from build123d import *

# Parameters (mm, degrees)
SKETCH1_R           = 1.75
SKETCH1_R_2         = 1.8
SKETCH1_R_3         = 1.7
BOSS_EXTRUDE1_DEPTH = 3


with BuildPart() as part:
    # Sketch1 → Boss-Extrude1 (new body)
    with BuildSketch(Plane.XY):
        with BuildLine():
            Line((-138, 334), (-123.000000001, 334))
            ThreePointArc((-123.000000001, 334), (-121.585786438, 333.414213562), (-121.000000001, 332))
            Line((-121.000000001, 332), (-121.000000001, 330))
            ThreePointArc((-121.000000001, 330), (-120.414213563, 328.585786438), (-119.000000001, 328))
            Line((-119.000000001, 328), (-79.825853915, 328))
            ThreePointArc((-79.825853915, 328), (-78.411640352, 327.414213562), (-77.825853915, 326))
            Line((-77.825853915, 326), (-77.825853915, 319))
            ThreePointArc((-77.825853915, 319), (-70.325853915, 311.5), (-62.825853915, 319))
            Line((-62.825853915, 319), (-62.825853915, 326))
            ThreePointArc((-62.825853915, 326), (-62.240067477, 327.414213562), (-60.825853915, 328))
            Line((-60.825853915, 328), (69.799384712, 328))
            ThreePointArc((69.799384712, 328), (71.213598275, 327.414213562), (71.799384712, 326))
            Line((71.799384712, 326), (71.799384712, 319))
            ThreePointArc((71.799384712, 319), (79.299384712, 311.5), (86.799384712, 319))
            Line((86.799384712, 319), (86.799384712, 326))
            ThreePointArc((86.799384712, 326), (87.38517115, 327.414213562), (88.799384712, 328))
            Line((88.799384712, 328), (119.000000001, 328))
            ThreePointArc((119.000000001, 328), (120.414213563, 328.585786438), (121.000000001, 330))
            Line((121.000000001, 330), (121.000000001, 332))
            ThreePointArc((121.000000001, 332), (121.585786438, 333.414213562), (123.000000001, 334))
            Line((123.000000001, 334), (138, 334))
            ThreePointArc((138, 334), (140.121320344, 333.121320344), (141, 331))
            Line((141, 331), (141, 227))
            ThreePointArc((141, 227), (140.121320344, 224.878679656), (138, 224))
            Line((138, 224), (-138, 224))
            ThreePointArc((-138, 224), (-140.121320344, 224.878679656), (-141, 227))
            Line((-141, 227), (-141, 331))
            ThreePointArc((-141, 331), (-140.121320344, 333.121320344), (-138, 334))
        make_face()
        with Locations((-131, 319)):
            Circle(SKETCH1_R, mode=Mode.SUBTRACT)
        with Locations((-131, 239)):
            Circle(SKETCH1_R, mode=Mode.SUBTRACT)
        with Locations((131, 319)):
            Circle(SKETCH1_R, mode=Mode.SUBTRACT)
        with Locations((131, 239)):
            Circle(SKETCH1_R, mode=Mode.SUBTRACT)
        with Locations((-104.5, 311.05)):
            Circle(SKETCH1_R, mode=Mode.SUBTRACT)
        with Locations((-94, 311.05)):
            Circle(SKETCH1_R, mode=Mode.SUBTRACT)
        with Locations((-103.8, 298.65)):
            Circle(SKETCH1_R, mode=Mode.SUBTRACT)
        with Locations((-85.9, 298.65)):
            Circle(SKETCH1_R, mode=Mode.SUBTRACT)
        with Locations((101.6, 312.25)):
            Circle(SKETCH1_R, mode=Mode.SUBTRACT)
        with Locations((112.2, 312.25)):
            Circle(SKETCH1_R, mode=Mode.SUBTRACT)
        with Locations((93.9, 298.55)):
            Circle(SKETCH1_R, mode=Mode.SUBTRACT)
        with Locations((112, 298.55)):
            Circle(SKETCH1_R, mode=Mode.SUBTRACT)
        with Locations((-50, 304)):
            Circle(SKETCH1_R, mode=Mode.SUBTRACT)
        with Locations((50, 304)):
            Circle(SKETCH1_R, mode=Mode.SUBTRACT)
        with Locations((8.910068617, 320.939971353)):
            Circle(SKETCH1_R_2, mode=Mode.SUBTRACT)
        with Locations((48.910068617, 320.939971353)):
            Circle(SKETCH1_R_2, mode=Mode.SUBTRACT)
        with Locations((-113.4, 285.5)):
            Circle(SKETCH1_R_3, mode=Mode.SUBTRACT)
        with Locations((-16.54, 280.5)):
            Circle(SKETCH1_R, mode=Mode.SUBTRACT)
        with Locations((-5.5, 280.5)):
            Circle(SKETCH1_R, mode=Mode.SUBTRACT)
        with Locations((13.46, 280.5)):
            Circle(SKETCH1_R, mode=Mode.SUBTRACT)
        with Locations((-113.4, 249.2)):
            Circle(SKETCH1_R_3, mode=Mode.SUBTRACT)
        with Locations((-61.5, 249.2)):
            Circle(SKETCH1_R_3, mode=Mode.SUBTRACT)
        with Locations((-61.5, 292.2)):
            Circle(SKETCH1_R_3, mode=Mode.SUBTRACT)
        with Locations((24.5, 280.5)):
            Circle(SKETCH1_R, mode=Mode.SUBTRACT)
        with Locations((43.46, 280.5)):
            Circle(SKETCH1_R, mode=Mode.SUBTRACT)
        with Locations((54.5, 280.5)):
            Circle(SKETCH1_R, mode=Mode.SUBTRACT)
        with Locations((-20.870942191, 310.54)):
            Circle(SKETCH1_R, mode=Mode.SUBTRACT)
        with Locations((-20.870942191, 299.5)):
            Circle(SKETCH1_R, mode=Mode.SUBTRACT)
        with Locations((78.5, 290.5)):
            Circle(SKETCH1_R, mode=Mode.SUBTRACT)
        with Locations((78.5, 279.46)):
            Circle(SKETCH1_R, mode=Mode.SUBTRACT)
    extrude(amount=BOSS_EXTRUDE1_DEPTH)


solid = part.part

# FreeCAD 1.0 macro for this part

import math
import FreeCAD as App
import Part
import Sketcher
from FreeCAD import Vector
Q = App.Units.Quantity

doc = App.newDocument("Part")
body = doc.addObject("PartDesign::Body", "Body")

# Sketch on XY plane
sketch1 = doc.addObject("Sketcher::SketchObject", "Sketch")
body.addObject(sketch1)
sketch1.AttachmentSupport = (doc.XY_Plane, [""])
sketch1.MapMode = "FlatFace"
sketch1.addGeometry([
    Part.LineSegment(Vector(-123, 334, 0), Vector(-138, 334, 0)),  # 0
    Part.ArcOfCircle(Part.Circle(Vector(-138, 331, 0), Vector(0, 0, 1), 3), math.radians(90), math.radians(180)),  # 1
    Part.LineSegment(Vector(-141, 331, 0), Vector(-141, 227, 0)),  # 2
    Part.ArcOfCircle(Part.Circle(Vector(-138, 227, 0), Vector(0, 0, 1), 3), math.radians(180), math.radians(270)),  # 3
    Part.LineSegment(Vector(-138, 224, 0), Vector(138, 224, 0)),  # 4
    Part.ArcOfCircle(Part.Circle(Vector(138, 227, 0), Vector(0, 0, 1), 3), math.radians(-90), math.radians(0)),  # 5
    Part.LineSegment(Vector(141, 227, 0), Vector(141, 331, 0)),  # 6
    Part.ArcOfCircle(Part.Circle(Vector(138, 331, 0), Vector(0, 0, 1), 3), math.radians(0), math.radians(90)),  # 7
    Part.LineSegment(Vector(138, 334, 0), Vector(123, 334, 0)),  # 8
    Part.ArcOfCircle(Part.Circle(Vector(123, 332, 0), Vector(0, 0, 1), 2), math.radians(90), math.radians(180)),  # 9
    Part.LineSegment(Vector(121, 332, 0), Vector(121, 330, 0)),  # 10
    Part.ArcOfCircle(Part.Circle(Vector(119, 330, 0), Vector(0, 0, 1), 2), math.radians(-90), math.radians(0)),  # 11
    Part.LineSegment(Vector(119, 328, 0), Vector(88.799385, 328, 0)),  # 12
    Part.ArcOfCircle(Part.Circle(Vector(88.799385, 326, 0), Vector(0, 0, 1), 2), math.radians(90), math.radians(180)),  # 13
    Part.LineSegment(Vector(86.799385, 326, 0), Vector(86.799385, 319, 0)),  # 14
    Part.ArcOfCircle(Part.Circle(Vector(79.299385, 319, 0), Vector(0, 0, 1), 7.5), math.radians(180), math.radians(360)),  # 15
    Part.LineSegment(Vector(71.799385, 319, 0), Vector(71.799385, 326, 0)),  # 16
    Part.ArcOfCircle(Part.Circle(Vector(69.799385, 326, 0), Vector(0, 0, 1), 2), math.radians(0), math.radians(90)),  # 17
    Part.LineSegment(Vector(69.799385, 328, 0), Vector(-60.825854, 328, 0)),  # 18
    Part.ArcOfCircle(Part.Circle(Vector(-60.825854, 326, 0), Vector(0, 0, 1), 2), math.radians(90), math.radians(180)),  # 19
    Part.LineSegment(Vector(-62.825854, 326, 0), Vector(-62.825854, 319, 0)),  # 20
    Part.ArcOfCircle(Part.Circle(Vector(-70.325854, 319, 0), Vector(0, 0, 1), 7.5), math.radians(180), math.radians(360)),  # 21
    Part.LineSegment(Vector(-77.825854, 319, 0), Vector(-77.825854, 326, 0)),  # 22
    Part.ArcOfCircle(Part.Circle(Vector(-79.825854, 326, 0), Vector(0, 0, 1), 2), math.radians(0), math.radians(90)),  # 23
    Part.LineSegment(Vector(-79.825854, 328, 0), Vector(-119, 328, 0)),  # 24
    Part.ArcOfCircle(Part.Circle(Vector(-119, 330, 0), Vector(0, 0, 1), 2), math.radians(-180), math.radians(-90)),  # 25
    Part.LineSegment(Vector(-121, 330, 0), Vector(-121, 332, 0)),  # 26
    Part.ArcOfCircle(Part.Circle(Vector(-123, 332, 0), Vector(0, 0, 1), 2), math.radians(0), math.radians(90)),  # 27
    Part.Circle(Vector(131, 239, 0), Vector(0, 0, 1), 1.75),  # 28
    Part.Circle(Vector(78.5, 279.46, 0), Vector(0, 0, 1), 1.75),  # 29
    Part.Circle(Vector(-61.5, 249.2, 0), Vector(0, 0, 1), 1.7),  # 30
    Part.Circle(Vector(-131, 239, 0), Vector(0, 0, 1), 1.75),  # 31
    Part.Circle(Vector(-113.4, 249.2, 0), Vector(0, 0, 1), 1.7),  # 32
    Part.Circle(Vector(78.5, 290.5, 0), Vector(0, 0, 1), 1.75),  # 33
    Part.Circle(Vector(112, 298.55, 0), Vector(0, 0, 1), 1.75),  # 34
    Part.Circle(Vector(93.9, 298.55, 0), Vector(0, 0, 1), 1.75),  # 35
    Part.Circle(Vector(54.5, 280.5, 0), Vector(0, 0, 1), 1.75),  # 36
    Part.Circle(Vector(43.46, 280.5, 0), Vector(0, 0, 1), 1.75),  # 37
    Part.Circle(Vector(24.5, 280.5, 0), Vector(0, 0, 1), 1.75),  # 38
    Part.Circle(Vector(13.46, 280.5, 0), Vector(0, 0, 1), 1.75),  # 39
    Part.Circle(Vector(112.2, 312.25, 0), Vector(0, 0, 1), 1.75),  # 40
    Part.Circle(Vector(101.6, 312.25, 0), Vector(0, 0, 1), 1.75),  # 41
    Part.Circle(Vector(131, 319, 0), Vector(0, 0, 1), 1.75),  # 42
    Part.Circle(Vector(50, 304, 0), Vector(0, 0, 1), 1.75),  # 43
    Part.Circle(Vector(48.910069, 320.939971, 0), Vector(0, 0, 1), 1.8),  # 44
    Part.Circle(Vector(8.910069, 320.939971, 0), Vector(0, 0, 1), 1.8),  # 45
    Part.Circle(Vector(-5.5, 280.5, 0), Vector(0, 0, 1), 1.75),  # 46
    Part.Circle(Vector(-16.54, 280.5, 0), Vector(0, 0, 1), 1.75),  # 47
    Part.Circle(Vector(-20.870942, 299.5, 0), Vector(0, 0, 1), 1.75),  # 48
    Part.Circle(Vector(-61.5, 292.2, 0), Vector(0, 0, 1), 1.7),  # 49
    Part.Circle(Vector(-113.4, 285.5, 0), Vector(0, 0, 1), 1.7),  # 50
    Part.Circle(Vector(-85.9, 298.65, 0), Vector(0, 0, 1), 1.75),  # 51
    Part.Circle(Vector(-103.8, 298.65, 0), Vector(0, 0, 1), 1.75),  # 52
    Part.Circle(Vector(-20.870942, 310.54, 0), Vector(0, 0, 1), 1.75),  # 53
    Part.Circle(Vector(-50, 304, 0), Vector(0, 0, 1), 1.75),  # 54
    Part.Circle(Vector(-94, 311.05, 0), Vector(0, 0, 1), 1.75),  # 55
    Part.Circle(Vector(-104.5, 311.05, 0), Vector(0, 0, 1), 1.75),  # 56
    Part.Circle(Vector(-131, 319, 0), Vector(0, 0, 1), 1.75),  # 57
], False)
sketch1.addConstraint([
    Sketcher.Constraint("Tangent", 0, 2, 1, 1),
    Sketcher.Constraint("Tangent", 1, 2, 2, 1),
    Sketcher.Constraint("Tangent", 2, 2, 3, 1),
    Sketcher.Constraint("Tangent", 3, 2, 4, 1),
    Sketcher.Constraint("Tangent", 4, 2, 5, 1),
    Sketcher.Constraint("Tangent", 5, 2, 6, 1),
    Sketcher.Constraint("Tangent", 6, 2, 7, 1),
    Sketcher.Constraint("Tangent", 7, 2, 8, 1),
    Sketcher.Constraint("Tangent", 8, 2, 9, 1),
    Sketcher.Constraint("Tangent", 9, 2, 10, 1),
    Sketcher.Constraint("Tangent", 10, 2, 11, 2),
    Sketcher.Constraint("Tangent", 11, 1, 12, 1),
    Sketcher.Constraint("Tangent", 12, 2, 13, 1),
    Sketcher.Constraint("Tangent", 13, 2, 14, 1),
    Sketcher.Constraint("Tangent", 14, 2, 15, 2),
    Sketcher.Constraint("Tangent", 15, 1, 16, 1),
    Sketcher.Constraint("Tangent", 16, 2, 17, 1),
    Sketcher.Constraint("Tangent", 17, 2, 18, 1),
    Sketcher.Constraint("Tangent", 18, 2, 19, 1),
    Sketcher.Constraint("Tangent", 19, 2, 20, 1),
    Sketcher.Constraint("Tangent", 20, 2, 21, 2),
    Sketcher.Constraint("Tangent", 21, 1, 22, 1),
    Sketcher.Constraint("Tangent", 22, 2, 23, 1),
    Sketcher.Constraint("Tangent", 23, 2, 24, 1),
    Sketcher.Constraint("Tangent", 24, 2, 25, 2),
    Sketcher.Constraint("Tangent", 25, 1, 26, 1),
    Sketcher.Constraint("Tangent", 26, 2, 27, 1),
    Sketcher.Constraint("Tangent", 27, 2, 0, 1),
    Sketcher.Constraint("Horizontal", 0),
    Sketcher.Constraint("Vertical", 2),
    Sketcher.Constraint("Horizontal", 4),
    Sketcher.Constraint("Vertical", 6),
    Sketcher.Constraint("Horizontal", 8),
    Sketcher.Constraint("Vertical", 10),
    Sketcher.Constraint("Horizontal", 12),
    Sketcher.Constraint("Vertical", 14),
    Sketcher.Constraint("Vertical", 16),
    Sketcher.Constraint("Horizontal", 18),
    Sketcher.Constraint("Vertical", 20),
    Sketcher.Constraint("Vertical", 22),
    Sketcher.Constraint("Horizontal", 24),
    Sketcher.Constraint("Vertical", 26),
    Sketcher.Constraint("Equal", 1, 3),
    Sketcher.Constraint("Equal", 3, 5),
    Sketcher.Constraint("Equal", 5, 7),
    Sketcher.Constraint("Equal", 9, 11),
    Sketcher.Constraint("Equal", 11, 13),
    Sketcher.Constraint("Equal", 13, 17),
    Sketcher.Constraint("Equal", 17, 19),
    Sketcher.Constraint("Equal", 15, 21),
    Sketcher.Constraint("Equal", 19, 23),
    Sketcher.Constraint("Equal", 23, 25),
    Sketcher.Constraint("Equal", 25, 27),
    Sketcher.Constraint("Equal", 28, 29),
    Sketcher.Constraint("Equal", 29, 31),
    Sketcher.Constraint("Equal", 30, 32),
    Sketcher.Constraint("Equal", 31, 33),
    Sketcher.Constraint("Equal", 33, 34),
    Sketcher.Constraint("Equal", 34, 35),
    Sketcher.Constraint("Equal", 35, 36),
    Sketcher.Constraint("Equal", 36, 37),
    Sketcher.Constraint("Equal", 37, 38),
    Sketcher.Constraint("Equal", 38, 39),
    Sketcher.Constraint("Equal", 39, 40),
    Sketcher.Constraint("Equal", 40, 41),
    Sketcher.Constraint("Equal", 41, 42),
    Sketcher.Constraint("Equal", 42, 43),
    Sketcher.Constraint("Equal", 44, 45),
    Sketcher.Constraint("Equal", 43, 46),
    Sketcher.Constraint("Equal", 46, 47),
    Sketcher.Constraint("Equal", 47, 48),
    Sketcher.Constraint("Equal", 32, 49),
    Sketcher.Constraint("Equal", 49, 50),
    Sketcher.Constraint("Equal", 48, 51),
    Sketcher.Constraint("Equal", 51, 52),
    Sketcher.Constraint("Equal", 52, 53),
    Sketcher.Constraint("Equal", 53, 54),
    Sketcher.Constraint("Equal", 54, 55),
    Sketcher.Constraint("Equal", 55, 56),
    Sketcher.Constraint("Equal", 56, 57),
    Sketcher.Constraint("Symmetric", 1, 3, 7, 3, -2),
    Sketcher.Constraint("Symmetric", 11, 3, 25, 3, -2),
    Sketcher.Constraint("Symmetric", 28, 3, 31, 3, -2),
    Sketcher.Constraint("Symmetric", 43, 3, 54, 3, -2),
    Sketcher.Constraint("Symmetric", 42, 3, 57, 3, -2),
    Sketcher.Constraint("Horizontal", 13, 3, 17, 3),
    Sketcher.Constraint("Horizontal", 15, 3, 21, 3),
    Sketcher.Constraint("Horizontal", 30, 3, 32, 3),
    Sketcher.Constraint("Horizontal", 34, 3, 35, 3),
    Sketcher.Constraint("Horizontal", 36, 3, 37, 3),
    Sketcher.Constraint("Horizontal", 37, 3, 38, 3),
    Sketcher.Constraint("Horizontal", 38, 3, 39, 3),
    Sketcher.Constraint("Horizontal", 40, 3, 41, 3),
    Sketcher.Constraint("Horizontal", 21, 3, 42, 3),
    Sketcher.Constraint("Horizontal", 44, 3, 45, 3),
    Sketcher.Constraint("Horizontal", 39, 3, 46, 3),
    Sketcher.Constraint("Horizontal", 46, 3, 47, 3),
    Sketcher.Constraint("Horizontal", 51, 3, 52, 3),
    Sketcher.Constraint("Horizontal", 55, 3, 56, 3),
    Sketcher.Constraint("Vertical", 29, 3, 33, 3),
    Sketcher.Constraint("Vertical", 28, 3, 42, 3),
    Sketcher.Constraint("Vertical", 30, 3, 49, 3),
    Sketcher.Constraint("Vertical", 32, 3, 50, 3),
    Sketcher.Constraint("Vertical", 48, 3, 53, 3),
    Sketcher.Constraint("Radius", 1, Q("3 mm")),
    Sketcher.Constraint("Radius", 9, Q("2 mm")),
    Sketcher.Constraint("Diameter", 28, Q("3.5 mm")),
    Sketcher.Constraint("Diameter", 30, Q("3.4 mm")),
    Sketcher.Constraint("Diameter", 44, Q("3.6 mm")),
    Sketcher.Constraint("Radius", 15, Q("7.5 mm")),
    Sketcher.Constraint("DistanceX", 0, 2, 0, 1, Q("15 mm")),
    Sketcher.Constraint("DistanceX", 4, 1, 4, 2, Q("276 mm")),
    Sketcher.Constraint("DistanceY", 2, 2, 2, 1, Q("104 mm")),
    Sketcher.Constraint("DistanceY", 10, 2, 10, 1, Q("2 mm")),
    Sketcher.Constraint("DistanceY", 14, 2, 14, 1, Q("7 mm")),
    Sketcher.Constraint("DistanceY", -1, 1, 1, 3, Q("331 mm")),
    Sketcher.Constraint("DistanceX", -1, 1, 28, 3, Q("131 mm")),
    Sketcher.Constraint("DistanceY", -1, 1, 28, 3, Q("239 mm")),
    Sketcher.Constraint("DistanceX", -1, 1, 34, 3, Q("112 mm")),
    Sketcher.Constraint("DistanceX", -1, 1, 43, 3, Q("50 mm")),
    Sketcher.Constraint("DistanceY", -1, 1, 43, 3, Q("304 mm")),
    Sketcher.Constraint("DistanceX", 55, 3, -1, 1, Q("94 mm")),
    Sketcher.Constraint("DistanceX", -1, 1, 29, 3, Q("78.5 mm")),
    Sketcher.Constraint("DistanceX", 30, 3, -1, 1, Q("61.5 mm")),
    Sketcher.Constraint("DistanceY", -1, 1, 30, 3, Q("249.2 mm")),
    Sketcher.Constraint("DistanceX", 32, 3, -1, 1, Q("113.4 mm")),
    Sketcher.Constraint("DistanceY", -1, 1, 33, 3, Q("290.5 mm")),
    Sketcher.Constraint("DistanceX", -1, 1, 35, 3, Q("93.9 mm")),
    Sketcher.Constraint("DistanceX", -1, 1, 36, 3, Q("54.5 mm")),
    Sketcher.Constraint("DistanceY", -1, 1, 36, 3, Q("280.5 mm")),
    Sketcher.Constraint("DistanceX", -1, 1, 38, 3, Q("24.5 mm")),
    Sketcher.Constraint("DistanceX", -1, 1, 40, 3, Q("112.2 mm")),
    Sketcher.Constraint("DistanceX", -1, 1, 41, 3, Q("101.6 mm")),
    Sketcher.Constraint("DistanceX", 46, 3, -1, 1, Q("5.5 mm")),
    Sketcher.Constraint("DistanceY", -1, 1, 48, 3, Q("299.5 mm")),
    Sketcher.Constraint("DistanceY", -1, 1, 49, 3, Q("292.2 mm")),
    Sketcher.Constraint("DistanceY", -1, 1, 50, 3, Q("285.5 mm")),
    Sketcher.Constraint("DistanceX", 51, 3, -1, 1, Q("85.9 mm")),
    Sketcher.Constraint("DistanceX", 52, 3, -1, 1, Q("103.8 mm")),
    Sketcher.Constraint("DistanceX", 56, 3, -1, 1, Q("104.5 mm")),
    Sketcher.Constraint("DistanceY", -1, 1, 29, 3, Q("279.46 mm")),
    Sketcher.Constraint("DistanceY", -1, 1, 34, 3, Q("298.55 mm")),
    Sketcher.Constraint("DistanceX", -1, 1, 37, 3, Q("43.46 mm")),
    Sketcher.Constraint("DistanceX", -1, 1, 39, 3, Q("13.46 mm")),
    Sketcher.Constraint("DistanceY", -1, 1, 40, 3, Q("312.25 mm")),
    Sketcher.Constraint("DistanceX", 47, 3, -1, 1, Q("16.54 mm")),
    Sketcher.Constraint("DistanceY", -1, 1, 51, 3, Q("298.65 mm")),
    Sketcher.Constraint("DistanceY", -1, 1, 53, 3, Q("310.54 mm")),
    Sketcher.Constraint("DistanceY", -1, 1, 55, 3, Q("311.05 mm")),
    Sketcher.Constraint("DistanceX", 18, 2, 18, 1, Q("130.625239 mm")),
    Sketcher.Constraint("DistanceX", 12, 2, 12, 1, Q("30.200615 mm")),
    Sketcher.Constraint("DistanceX", -1, 1, 44, 3, Q("48.910069 mm")),
    Sketcher.Constraint("DistanceY", -1, 1, 44, 3, Q("320.939971 mm")),
    Sketcher.Constraint("DistanceX", -1, 1, 45, 3, Q("8.910069 mm")),
    Sketcher.Constraint("DistanceX", 48, 3, -1, 1, Q("20.870942 mm")),
])
pad1 = doc.addObject("PartDesign::Pad", "Pad")
body.addObject(pad1)
pad1.Profile = sketch1
pad1.Length = 3

doc.recompute()
